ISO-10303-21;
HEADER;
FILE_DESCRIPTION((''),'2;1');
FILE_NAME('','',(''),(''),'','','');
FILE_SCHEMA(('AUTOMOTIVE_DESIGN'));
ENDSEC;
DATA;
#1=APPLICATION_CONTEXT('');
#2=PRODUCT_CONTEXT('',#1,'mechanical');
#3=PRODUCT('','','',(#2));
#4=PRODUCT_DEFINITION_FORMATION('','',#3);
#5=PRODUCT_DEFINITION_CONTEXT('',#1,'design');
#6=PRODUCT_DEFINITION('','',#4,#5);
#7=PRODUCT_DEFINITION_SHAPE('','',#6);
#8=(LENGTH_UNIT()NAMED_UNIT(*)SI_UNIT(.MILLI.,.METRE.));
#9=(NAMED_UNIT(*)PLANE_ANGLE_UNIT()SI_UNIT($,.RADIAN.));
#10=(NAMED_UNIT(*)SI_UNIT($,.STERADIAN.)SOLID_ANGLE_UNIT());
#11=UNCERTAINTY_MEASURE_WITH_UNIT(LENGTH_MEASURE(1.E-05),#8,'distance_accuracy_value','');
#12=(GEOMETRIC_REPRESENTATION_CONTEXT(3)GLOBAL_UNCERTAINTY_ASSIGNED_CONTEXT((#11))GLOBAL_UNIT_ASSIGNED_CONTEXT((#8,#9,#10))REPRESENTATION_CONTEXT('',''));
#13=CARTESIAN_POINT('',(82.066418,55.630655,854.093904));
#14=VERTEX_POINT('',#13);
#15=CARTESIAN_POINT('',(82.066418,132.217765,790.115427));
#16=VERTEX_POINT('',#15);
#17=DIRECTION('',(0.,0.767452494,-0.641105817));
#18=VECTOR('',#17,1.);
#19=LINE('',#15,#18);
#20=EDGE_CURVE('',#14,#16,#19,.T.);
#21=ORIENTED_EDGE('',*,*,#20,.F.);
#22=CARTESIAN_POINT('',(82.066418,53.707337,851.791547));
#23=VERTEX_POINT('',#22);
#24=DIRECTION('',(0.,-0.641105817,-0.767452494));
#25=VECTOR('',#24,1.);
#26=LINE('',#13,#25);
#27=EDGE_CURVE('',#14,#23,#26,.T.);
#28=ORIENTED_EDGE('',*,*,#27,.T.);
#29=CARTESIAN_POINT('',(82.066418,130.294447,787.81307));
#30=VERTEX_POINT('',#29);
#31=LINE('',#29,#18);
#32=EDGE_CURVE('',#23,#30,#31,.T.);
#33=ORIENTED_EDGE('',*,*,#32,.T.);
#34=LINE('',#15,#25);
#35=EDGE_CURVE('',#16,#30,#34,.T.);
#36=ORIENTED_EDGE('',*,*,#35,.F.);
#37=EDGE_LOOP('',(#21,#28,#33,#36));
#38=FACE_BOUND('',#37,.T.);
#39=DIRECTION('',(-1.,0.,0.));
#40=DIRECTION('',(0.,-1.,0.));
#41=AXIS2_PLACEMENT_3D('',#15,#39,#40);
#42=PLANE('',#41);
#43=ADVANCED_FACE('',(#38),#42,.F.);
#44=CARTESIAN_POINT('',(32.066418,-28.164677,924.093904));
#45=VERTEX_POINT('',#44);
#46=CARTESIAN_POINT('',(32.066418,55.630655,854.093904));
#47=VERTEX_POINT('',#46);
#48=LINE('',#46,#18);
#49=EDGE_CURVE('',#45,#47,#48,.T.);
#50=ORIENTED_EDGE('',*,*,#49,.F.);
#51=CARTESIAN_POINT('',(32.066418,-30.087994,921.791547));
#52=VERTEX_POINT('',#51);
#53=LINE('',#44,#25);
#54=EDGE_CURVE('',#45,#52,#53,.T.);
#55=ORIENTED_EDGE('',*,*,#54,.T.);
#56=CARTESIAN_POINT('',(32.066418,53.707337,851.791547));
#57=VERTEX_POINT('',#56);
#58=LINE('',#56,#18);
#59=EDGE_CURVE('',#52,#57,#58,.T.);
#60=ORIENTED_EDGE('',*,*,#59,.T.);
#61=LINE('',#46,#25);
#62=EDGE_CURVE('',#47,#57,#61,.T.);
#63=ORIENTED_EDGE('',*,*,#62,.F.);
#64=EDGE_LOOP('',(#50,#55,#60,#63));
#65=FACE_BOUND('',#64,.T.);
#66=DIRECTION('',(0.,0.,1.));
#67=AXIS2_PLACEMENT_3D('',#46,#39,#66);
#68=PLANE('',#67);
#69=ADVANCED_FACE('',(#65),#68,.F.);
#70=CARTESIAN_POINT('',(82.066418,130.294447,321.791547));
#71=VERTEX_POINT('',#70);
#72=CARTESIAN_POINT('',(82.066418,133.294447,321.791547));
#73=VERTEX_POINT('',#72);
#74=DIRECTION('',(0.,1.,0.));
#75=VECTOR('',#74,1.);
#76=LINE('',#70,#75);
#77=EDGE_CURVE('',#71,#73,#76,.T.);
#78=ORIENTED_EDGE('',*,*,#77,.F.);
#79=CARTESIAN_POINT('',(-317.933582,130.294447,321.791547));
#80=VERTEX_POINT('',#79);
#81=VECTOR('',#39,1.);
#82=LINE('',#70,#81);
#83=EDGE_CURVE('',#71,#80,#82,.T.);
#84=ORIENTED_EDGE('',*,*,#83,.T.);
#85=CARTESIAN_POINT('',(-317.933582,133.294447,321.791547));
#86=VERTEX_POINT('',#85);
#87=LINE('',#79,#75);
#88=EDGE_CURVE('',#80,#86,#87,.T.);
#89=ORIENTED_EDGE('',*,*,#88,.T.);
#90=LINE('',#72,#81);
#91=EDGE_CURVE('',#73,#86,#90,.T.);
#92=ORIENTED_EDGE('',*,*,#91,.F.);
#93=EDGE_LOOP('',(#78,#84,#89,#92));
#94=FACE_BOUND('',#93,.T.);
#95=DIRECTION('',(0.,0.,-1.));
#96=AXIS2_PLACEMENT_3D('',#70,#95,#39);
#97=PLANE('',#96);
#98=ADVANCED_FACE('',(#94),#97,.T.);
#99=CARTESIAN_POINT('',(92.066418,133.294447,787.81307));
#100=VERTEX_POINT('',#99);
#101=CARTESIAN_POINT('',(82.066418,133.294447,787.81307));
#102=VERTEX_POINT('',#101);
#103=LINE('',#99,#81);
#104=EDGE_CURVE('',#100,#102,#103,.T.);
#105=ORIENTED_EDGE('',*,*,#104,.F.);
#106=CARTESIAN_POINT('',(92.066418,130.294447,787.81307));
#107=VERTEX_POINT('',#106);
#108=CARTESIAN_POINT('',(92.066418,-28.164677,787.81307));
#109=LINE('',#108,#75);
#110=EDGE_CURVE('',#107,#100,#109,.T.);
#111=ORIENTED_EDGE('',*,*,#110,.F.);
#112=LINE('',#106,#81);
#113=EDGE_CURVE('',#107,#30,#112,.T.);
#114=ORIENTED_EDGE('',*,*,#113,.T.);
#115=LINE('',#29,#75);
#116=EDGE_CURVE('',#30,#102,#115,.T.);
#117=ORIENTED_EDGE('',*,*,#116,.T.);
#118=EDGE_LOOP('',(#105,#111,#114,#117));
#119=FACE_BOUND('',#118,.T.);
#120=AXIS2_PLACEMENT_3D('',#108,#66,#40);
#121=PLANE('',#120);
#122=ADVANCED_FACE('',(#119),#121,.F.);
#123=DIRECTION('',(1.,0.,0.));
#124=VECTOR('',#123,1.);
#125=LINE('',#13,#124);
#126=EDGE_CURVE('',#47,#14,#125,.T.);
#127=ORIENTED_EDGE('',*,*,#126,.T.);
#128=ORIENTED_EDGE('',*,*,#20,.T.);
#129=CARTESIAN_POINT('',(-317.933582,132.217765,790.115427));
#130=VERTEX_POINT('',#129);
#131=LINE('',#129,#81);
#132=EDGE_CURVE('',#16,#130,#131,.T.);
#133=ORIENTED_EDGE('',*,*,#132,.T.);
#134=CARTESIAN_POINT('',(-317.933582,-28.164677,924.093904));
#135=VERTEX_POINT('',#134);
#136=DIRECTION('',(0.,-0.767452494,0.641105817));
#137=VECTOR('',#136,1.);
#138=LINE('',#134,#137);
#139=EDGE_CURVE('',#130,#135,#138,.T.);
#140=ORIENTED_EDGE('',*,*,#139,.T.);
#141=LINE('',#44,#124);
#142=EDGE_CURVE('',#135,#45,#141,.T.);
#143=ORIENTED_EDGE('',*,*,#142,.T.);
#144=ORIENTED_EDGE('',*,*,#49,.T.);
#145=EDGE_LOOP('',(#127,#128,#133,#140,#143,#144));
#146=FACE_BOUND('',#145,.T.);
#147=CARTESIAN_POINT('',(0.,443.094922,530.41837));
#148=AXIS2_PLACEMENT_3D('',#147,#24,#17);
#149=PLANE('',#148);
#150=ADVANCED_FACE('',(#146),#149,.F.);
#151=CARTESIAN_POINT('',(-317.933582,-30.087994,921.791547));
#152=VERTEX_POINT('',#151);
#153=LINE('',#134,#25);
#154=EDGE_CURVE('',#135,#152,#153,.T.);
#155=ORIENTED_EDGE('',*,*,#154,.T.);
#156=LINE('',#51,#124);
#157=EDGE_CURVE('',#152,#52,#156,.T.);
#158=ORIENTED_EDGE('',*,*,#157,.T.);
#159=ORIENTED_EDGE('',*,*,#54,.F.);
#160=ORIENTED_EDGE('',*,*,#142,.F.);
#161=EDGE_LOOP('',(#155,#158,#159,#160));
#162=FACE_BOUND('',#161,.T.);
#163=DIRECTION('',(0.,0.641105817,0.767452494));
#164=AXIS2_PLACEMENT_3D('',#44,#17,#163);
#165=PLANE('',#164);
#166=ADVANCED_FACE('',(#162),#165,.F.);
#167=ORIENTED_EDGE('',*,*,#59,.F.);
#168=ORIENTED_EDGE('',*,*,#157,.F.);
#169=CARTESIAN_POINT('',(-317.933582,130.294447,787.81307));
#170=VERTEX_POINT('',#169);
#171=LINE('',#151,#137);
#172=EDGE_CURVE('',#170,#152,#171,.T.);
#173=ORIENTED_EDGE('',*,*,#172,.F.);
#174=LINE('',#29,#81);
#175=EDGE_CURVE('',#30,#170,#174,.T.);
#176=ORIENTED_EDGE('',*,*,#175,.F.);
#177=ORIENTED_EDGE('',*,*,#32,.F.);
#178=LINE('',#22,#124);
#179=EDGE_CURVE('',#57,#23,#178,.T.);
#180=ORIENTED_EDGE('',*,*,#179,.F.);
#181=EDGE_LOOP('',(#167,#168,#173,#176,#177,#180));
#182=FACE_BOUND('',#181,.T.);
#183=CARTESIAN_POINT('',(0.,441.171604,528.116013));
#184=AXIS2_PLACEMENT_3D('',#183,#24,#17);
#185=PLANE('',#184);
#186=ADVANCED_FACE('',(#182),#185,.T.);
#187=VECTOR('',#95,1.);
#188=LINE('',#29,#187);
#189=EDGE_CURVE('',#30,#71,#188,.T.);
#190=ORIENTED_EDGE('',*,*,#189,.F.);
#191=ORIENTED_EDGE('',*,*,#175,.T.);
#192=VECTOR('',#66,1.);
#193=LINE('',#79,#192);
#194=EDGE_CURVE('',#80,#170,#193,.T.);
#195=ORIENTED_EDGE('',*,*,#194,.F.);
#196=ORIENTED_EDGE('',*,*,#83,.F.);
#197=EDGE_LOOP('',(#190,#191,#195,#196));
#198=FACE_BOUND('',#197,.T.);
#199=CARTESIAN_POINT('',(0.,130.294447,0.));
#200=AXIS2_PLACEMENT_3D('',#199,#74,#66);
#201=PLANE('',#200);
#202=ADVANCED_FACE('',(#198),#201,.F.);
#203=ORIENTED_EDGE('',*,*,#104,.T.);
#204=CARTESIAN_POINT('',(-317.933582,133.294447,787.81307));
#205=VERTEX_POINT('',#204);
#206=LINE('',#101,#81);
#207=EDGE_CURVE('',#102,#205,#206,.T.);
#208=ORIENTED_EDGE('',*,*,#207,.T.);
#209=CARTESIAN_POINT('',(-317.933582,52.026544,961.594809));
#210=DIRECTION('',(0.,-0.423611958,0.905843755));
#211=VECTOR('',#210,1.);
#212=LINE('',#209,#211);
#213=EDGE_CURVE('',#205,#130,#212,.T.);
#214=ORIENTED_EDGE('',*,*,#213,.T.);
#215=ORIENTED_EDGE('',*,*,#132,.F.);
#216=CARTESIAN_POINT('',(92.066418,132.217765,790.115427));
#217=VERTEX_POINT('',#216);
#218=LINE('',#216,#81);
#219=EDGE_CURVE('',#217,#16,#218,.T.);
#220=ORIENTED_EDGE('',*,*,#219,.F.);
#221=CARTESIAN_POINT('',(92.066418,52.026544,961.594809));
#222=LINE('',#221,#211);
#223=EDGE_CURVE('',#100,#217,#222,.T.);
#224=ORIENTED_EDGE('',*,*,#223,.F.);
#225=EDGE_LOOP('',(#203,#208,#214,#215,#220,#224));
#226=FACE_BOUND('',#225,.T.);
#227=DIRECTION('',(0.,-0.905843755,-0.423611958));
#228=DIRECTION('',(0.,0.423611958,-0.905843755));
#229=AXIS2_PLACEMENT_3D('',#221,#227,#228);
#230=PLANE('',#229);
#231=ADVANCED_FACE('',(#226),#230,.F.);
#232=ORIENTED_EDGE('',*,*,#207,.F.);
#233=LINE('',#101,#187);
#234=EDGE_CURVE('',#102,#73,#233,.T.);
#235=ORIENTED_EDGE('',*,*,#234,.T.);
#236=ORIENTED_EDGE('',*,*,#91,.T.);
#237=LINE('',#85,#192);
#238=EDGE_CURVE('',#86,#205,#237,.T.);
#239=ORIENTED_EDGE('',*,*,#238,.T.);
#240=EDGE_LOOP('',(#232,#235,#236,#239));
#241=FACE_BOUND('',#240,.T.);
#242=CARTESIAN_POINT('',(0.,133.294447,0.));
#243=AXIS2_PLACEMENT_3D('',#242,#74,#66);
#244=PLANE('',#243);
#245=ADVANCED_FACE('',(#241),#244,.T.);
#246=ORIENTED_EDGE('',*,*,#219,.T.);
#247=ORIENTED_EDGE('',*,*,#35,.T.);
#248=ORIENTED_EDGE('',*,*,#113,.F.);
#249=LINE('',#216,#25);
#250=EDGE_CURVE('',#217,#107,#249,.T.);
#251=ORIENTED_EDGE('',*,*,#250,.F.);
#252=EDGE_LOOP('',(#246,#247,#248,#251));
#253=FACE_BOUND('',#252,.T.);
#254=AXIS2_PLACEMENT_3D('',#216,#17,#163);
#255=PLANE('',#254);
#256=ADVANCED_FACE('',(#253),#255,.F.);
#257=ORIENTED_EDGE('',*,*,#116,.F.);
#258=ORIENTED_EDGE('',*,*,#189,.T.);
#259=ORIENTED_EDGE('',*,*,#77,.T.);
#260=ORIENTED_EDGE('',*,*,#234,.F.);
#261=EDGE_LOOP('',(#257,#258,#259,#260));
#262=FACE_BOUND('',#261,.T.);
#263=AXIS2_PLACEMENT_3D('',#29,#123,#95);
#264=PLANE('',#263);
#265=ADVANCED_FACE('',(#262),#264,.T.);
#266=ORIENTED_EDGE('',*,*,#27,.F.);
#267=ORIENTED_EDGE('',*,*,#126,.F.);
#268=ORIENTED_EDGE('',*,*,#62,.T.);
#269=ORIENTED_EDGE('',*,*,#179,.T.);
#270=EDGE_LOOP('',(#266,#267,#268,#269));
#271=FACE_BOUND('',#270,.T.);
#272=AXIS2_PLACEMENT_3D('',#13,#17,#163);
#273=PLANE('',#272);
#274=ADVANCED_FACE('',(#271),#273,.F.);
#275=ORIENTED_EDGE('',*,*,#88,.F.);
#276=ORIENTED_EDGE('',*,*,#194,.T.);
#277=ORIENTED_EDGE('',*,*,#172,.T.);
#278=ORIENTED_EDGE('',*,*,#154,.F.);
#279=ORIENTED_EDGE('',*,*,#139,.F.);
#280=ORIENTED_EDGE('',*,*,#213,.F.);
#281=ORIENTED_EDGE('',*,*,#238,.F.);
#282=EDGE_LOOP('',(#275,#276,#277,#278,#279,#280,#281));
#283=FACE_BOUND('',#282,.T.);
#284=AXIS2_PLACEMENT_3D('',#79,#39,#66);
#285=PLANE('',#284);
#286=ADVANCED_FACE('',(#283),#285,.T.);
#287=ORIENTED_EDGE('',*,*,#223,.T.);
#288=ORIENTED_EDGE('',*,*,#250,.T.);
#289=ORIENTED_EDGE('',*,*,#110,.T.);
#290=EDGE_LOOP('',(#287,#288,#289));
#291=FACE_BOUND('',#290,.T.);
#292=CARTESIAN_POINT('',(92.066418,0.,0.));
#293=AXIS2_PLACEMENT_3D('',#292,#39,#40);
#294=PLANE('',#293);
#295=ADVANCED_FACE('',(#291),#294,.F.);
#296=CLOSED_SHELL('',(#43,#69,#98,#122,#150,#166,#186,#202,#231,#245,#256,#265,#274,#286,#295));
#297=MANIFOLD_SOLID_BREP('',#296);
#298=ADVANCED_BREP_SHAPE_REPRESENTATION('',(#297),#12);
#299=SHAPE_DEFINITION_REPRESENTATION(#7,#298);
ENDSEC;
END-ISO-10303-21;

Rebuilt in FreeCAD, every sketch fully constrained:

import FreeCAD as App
import Part
import Sketcher


def add_polygon(sketch, points):
    """Adds a closed chain of lines whose ends are joined by coincident constraints."""
    first, n = sketch.GeometryCount, len(points)
    for a, b in zip(points, points[1:] + points[:1]):
        sketch.addGeometry(Part.LineSegment(App.Vector(*a, 0), App.Vector(*b, 0)), False)
    for i in range(n):
        sketch.addConstraint(Sketcher.Constraint("Coincident", first + i, 2, first + (i + 1) % n, 1))

doc = App.newDocument("Part")
params = doc.addObject("Spreadsheet::Sheet", "Params")
for row, (alias, value) in enumerate([
    ("sketch1_width", "400 mm"),
    ("pad1_length", "3 mm"),
    ("sketch2_width", "350 mm"),
    ("sketch2_width2", "50 mm"),
    ("pad2_length", "3 mm"),
    ("sketch3_width", "3 mm"),
    ("sketch3_length", "3 mm"),
    ("pad3_length", "410 mm"),
], start=1):
    params.set(f"A{row}", alias)
    params.set(f"B{row}", "=" + value)
    params.setAlias(f"B{row}", alias)

body = doc.addObject("PartDesign::Body", "Body")

sketch1 = body.newObject("Sketcher::SketchObject", "Sketch")
sketch1.AttachmentSupport = (doc.getObject("XZ_Plane"), [""])
sketch1.MapMode = "FlatFace"
sketch1.AttachmentOffset = App.Placement(App.Vector(0, 0, -130.294447), App.Rotation())
add_polygon(sketch1, [(-318, 788), (-318, 322), (82, 322), (82, 788)])
sketch1.addConstraint([
    Sketcher.Constraint("Vertical", 0),
    Sketcher.Constraint("Horizontal", 1),
    Sketcher.Constraint("Vertical", 2),
    Sketcher.Constraint("Horizontal", 3),
    Sketcher.Constraint("DistanceX", 1, 1, 1, 2, 400.0),
    Sketcher.Constraint("DistanceY", 0, 2, 0, 1, 466.021523),
    Sketcher.Constraint("DistanceY", -1, 1, 2, 2, 787.813069),
    Sketcher.Constraint("DistanceX", 0, 2, -1, 1, 317.933582),
])
sketch1.setExpression("Constraints[8]", "Params.sketch1_width")
pad1 = body.newObject("PartDesign::Pad", "Pad")
pad1.Profile = sketch1
pad1.setExpression("Length", "Params.pad1_length")
pad1.Reversed = True
body2 = doc.addObject("PartDesign::Body", "Body001")

sketch2 = body2.newObject("Sketcher::SketchObject", "Sketch001")
sketch2.Placement = App.Placement(App.Vector(0, 441.171604, 528.116013), App.Rotation(App.Vector(1, 0, 0), App.Vector(0, 0.767452494, -0.641105817), App.Vector(0, 0.641105817, 0.767452494), "ZXY"))
add_polygon(sketch2, [(-318, -405), (-318, -614), (32, -614), (32, -505), (82, -505), (82, -405)])
sketch2.addConstraint([
    Sketcher.Constraint("Vertical", 0),
    Sketcher.Constraint("Horizontal", 1),
    Sketcher.Constraint("Vertical", 2),
    Sketcher.Constraint("Horizontal", 3),
    Sketcher.Constraint("Vertical", 4),
    Sketcher.Constraint("Horizontal", 5),
    Sketcher.Constraint("DistanceX", 1, 1, 1, 2, 350.0),
    Sketcher.Constraint("DistanceX", 3, 1, 3, 2, 50.0),
    Sketcher.Constraint("DistanceY", 0, 2, 0, 1, 208.980286),
    Sketcher.Constraint("DistanceY", 2, 1, 2, 2, 109.186343),
    Sketcher.Constraint("DistanceY", 0, 2, -1, 1, 614.057029),
    Sketcher.Constraint("DistanceX", 0, 2, -1, 1, 317.933582),
])
sketch2.setExpression("Constraints[12]", "Params.sketch2_width")
sketch2.setExpression("Constraints[13]", "Params.sketch2_width2")
pad2 = body2.newObject("PartDesign::Pad", "Pad001")
pad2.Profile = sketch2
pad2.setExpression("Length", "Params.pad2_length")
body.AllowCompound = True
doc.recompute()

boolean = body.newObject("PartDesign::Boolean", "Boolean")
boolean.Type = "Fuse"
boolean.addObjects([body2])

sketch3 = body.newObject("Sketcher::SketchObject", "Sketch002")
sketch3.AttachmentSupport = (doc.getObject("YZ_Plane"), [""])
sketch3.MapMode = "FlatFace"
sketch3.AttachmentOffset = App.Placement(App.Vector(0, 0, -317.933582), App.Rotation())
add_polygon(sketch3, [(133.3, 787.8), (130.3, 787.8), (132.2, 790.1)])
sketch3.addConstraint([
    Sketcher.Constraint("Horizontal", 0),
    Sketcher.Constraint("DistanceX", 0, 2, 0, 1, 3.0),
    Sketcher.Constraint("Distance", 1, 3.0),
    Sketcher.Constraint("Distance", 2, 2.541672),
    Sketcher.Constraint("DistanceY", -1, 1, 0, 2, 787.81307),
    Sketcher.Constraint("DistanceX", -1, 1, 0, 2, 130.294447),
])
sketch3.setExpression("Constraints[4]", "Params.sketch3_width")
sketch3.setExpression("Constraints[5]", "Params.sketch3_length")
pad3 = body.newObject("PartDesign::Pad", "Pad002")
pad3.Profile = sketch3
pad3.setExpression("Length", "Params.pad3_length")

doc.recompute()
